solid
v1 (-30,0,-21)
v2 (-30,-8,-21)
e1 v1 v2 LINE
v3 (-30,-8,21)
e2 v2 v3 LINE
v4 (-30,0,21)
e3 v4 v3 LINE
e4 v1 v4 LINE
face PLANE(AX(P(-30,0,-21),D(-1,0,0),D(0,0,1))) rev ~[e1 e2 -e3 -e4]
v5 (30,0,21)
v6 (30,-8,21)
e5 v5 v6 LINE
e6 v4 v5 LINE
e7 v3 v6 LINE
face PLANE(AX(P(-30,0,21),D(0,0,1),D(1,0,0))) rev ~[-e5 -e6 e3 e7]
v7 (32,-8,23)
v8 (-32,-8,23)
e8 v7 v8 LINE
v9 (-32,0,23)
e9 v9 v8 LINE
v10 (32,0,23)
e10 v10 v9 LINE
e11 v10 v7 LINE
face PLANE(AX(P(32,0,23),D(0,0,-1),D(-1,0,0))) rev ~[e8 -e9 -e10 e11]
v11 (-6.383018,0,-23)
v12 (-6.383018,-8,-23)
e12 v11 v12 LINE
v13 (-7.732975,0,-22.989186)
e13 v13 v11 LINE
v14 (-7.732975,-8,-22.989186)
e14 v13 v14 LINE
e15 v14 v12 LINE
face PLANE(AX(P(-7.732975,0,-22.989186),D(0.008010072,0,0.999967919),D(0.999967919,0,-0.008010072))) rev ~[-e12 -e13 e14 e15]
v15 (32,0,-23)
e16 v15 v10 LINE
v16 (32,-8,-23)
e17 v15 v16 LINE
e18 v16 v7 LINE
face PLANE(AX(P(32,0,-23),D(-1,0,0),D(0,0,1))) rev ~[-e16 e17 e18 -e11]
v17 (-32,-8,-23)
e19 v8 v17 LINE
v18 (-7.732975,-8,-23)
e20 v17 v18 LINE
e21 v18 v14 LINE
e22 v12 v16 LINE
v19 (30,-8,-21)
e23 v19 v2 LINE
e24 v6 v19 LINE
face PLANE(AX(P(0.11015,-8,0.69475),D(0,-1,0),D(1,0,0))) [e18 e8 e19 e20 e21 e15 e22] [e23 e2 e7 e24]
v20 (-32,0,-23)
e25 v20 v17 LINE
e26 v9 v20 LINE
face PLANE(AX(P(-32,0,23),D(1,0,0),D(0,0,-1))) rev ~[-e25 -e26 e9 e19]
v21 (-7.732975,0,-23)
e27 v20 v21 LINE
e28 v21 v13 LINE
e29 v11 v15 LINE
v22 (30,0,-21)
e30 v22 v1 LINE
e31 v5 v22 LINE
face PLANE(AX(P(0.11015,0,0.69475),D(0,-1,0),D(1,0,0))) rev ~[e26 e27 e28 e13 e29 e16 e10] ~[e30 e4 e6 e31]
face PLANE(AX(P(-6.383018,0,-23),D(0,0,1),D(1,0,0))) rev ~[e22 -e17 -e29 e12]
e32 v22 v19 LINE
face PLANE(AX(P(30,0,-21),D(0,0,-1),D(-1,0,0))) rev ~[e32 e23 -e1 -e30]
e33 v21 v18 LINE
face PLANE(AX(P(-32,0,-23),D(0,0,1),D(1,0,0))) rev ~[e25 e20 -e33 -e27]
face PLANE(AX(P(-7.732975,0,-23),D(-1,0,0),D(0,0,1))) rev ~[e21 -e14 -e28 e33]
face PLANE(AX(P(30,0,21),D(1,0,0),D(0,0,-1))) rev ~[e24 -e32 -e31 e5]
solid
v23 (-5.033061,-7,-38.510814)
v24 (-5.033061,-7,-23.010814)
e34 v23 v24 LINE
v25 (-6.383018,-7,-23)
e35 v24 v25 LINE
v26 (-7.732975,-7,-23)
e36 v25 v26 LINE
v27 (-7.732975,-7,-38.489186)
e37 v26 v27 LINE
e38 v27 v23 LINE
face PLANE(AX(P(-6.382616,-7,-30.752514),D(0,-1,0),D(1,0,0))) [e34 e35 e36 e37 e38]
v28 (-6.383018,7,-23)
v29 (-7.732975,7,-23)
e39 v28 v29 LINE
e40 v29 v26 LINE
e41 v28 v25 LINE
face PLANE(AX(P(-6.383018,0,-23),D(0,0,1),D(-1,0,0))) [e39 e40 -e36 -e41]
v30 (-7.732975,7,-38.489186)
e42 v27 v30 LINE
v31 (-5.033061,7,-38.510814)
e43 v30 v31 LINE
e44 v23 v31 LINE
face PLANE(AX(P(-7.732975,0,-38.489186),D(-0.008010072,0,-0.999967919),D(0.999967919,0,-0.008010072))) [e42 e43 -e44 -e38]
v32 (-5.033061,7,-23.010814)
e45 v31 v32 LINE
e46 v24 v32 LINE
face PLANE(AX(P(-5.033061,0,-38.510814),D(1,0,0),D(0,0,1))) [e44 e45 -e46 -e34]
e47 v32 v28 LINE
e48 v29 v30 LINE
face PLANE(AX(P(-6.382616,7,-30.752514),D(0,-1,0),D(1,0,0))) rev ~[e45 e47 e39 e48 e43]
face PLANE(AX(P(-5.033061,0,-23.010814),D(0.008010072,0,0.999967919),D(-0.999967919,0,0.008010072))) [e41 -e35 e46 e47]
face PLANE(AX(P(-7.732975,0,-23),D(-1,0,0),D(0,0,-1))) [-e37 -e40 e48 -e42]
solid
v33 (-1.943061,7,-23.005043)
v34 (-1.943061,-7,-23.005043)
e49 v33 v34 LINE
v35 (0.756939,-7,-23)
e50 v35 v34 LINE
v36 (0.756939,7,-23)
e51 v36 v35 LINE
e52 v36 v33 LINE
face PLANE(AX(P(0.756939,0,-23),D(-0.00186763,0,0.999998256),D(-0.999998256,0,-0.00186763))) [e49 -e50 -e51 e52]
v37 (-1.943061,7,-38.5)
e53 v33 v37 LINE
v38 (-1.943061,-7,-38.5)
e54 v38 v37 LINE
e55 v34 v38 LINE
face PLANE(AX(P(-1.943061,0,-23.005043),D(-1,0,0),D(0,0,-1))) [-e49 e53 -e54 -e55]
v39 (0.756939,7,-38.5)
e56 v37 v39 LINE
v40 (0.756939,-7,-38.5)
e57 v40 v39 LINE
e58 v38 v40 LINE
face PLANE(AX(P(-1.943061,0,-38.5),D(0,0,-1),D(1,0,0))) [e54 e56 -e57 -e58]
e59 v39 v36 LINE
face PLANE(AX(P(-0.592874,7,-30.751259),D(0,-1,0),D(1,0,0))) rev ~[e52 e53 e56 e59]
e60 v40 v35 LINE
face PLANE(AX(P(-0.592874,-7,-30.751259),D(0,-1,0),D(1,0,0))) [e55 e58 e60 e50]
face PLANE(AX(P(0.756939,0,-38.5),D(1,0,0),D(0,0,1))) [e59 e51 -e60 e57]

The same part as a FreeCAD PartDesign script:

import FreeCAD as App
import Part
import Sketcher
from FreeCAD import Vector


def add_polygon(sketch, points):
    """Adds a closed chain of lines whose ends are joined by coincident constraints."""
    first, n = sketch.GeometryCount, len(points)
    for a, b in zip(points, points[1:] + points[:1]):
        sketch.addGeometry(Part.LineSegment(App.Vector(*a, 0), App.Vector(*b, 0)), False)
    for i in range(n):
        sketch.addConstraint(Sketcher.Constraint("Coincident", first + i, 2, first + (i + 1) % n, 1))

doc = App.newDocument("Part")
body = doc.addObject("PartDesign::Body", "Body")

# Sketch on XZ plane
sketch1 = doc.addObject("Sketcher::SketchObject", "Sketch")
body.addObject(sketch1)
sketch1.AttachmentSupport = (doc.XZ_Plane, [""])
sketch1.MapMode = "FlatFace"
add_polygon(sketch1, [(32, -23), (32, 23), (-32, 23), (-32, -23), (-7.732975, -23), (-7.732975, -22.989186), (-6.383018, -23)])  # lines 0-6
add_polygon(sketch1, [(30, 21), (30, -21), (-30, -21), (-30, 21)])  # lines 7-10
sketch1.addConstraint(Sketcher.Constraint("Vertical", 0))
sketch1.addConstraint(Sketcher.Constraint("Horizontal", 1))
sketch1.addConstraint(Sketcher.Constraint("Vertical", 2))
sketch1.addConstraint(Sketcher.Constraint("Horizontal", 3))
sketch1.addConstraint(Sketcher.Constraint("Vertical", 4))
sketch1.addConstraint(Sketcher.Constraint("Horizontal", 6))
sketch1.addConstraint(Sketcher.Constraint("Vertical", 7))
sketch1.addConstraint(Sketcher.Constraint("Horizontal", 8))
sketch1.addConstraint(Sketcher.Constraint("Vertical", 9))
sketch1.addConstraint(Sketcher.Constraint("Horizontal", 10))
sketch1.addConstraint(Sketcher.Constraint("Symmetric", 0, 2, 2, 2, -1, 1))
sketch1.addConstraint(Sketcher.Constraint("Symmetric", 7, 2, 9, 2, -1, 1))
sketch1.addConstraint(Sketcher.Constraint("Horizontal", 3, 2, 5, 2))
sketch1.addConstraint(Sketcher.Constraint("DistanceX", 1, 2, 1, 1, 64.0))
sketch1.addConstraint(Sketcher.Constraint("DistanceX", 8, 2, 8, 1, 60.0))
sketch1.addConstraint(Sketcher.Constraint("DistanceY", 0, 1, 0, 2, 46.0))
sketch1.addConstraint(Sketcher.Constraint("DistanceY", 7, 2, 7, 1, 42.0))
sketch1.addConstraint(Sketcher.Constraint("Distance", 5, 1.35))
sketch1.addConstraint(Sketcher.Constraint("DistanceX", 6, 1, 6, 2, 38.383018))
sketch1.addConstraint(Sketcher.Constraint("DistanceX", 3, 1, 3, 2, 24.267025))
pad1 = doc.addObject("PartDesign::Pad", "Pad")
body.addObject(pad1)
pad1.Profile = sketch1
pad1.Length = 8
body2 = doc.addObject("PartDesign::Body", "Body001")

# Sketch on XZ plane
sketch2 = doc.addObject("Sketcher::SketchObject", "Sketch001")
body2.addObject(sketch2)
sketch2.AttachmentSupport = (doc.getObject("XZ_Plane001"), [""])
sketch2.MapMode = "FlatFace"
add_polygon(sketch2, [(-5.033061, -23.010814), (-6.383018, -23), (-7.732975, -23), (-7.732975, -38.489186), (-5.033061, -38.510814)])  # lines 0-4
sketch2.addConstraint(Sketcher.Constraint("Horizontal", 1))
sketch2.addConstraint(Sketcher.Constraint("Vertical", 2))
sketch2.addConstraint(Sketcher.Constraint("Vertical", 4))
sketch2.addConstraint(Sketcher.Constraint("Parallel", 0, 3))
sketch2.addConstraint(Sketcher.Constraint("DistanceY", 4, 1, 4, 2, 15.5))
sketch2.addConstraint(Sketcher.Constraint("DistanceY", 0, 2, -1, 1, 23.0))
sketch2.addConstraint(Sketcher.Constraint("Distance", 3, 2.7))
sketch2.addConstraint(Sketcher.Constraint("Distance", 0, 1.35))
sketch2.addConstraint(Sketcher.Constraint("DistanceX", 1, 2, 1, 1, 1.349957))
sketch2.addConstraint(Sketcher.Constraint("DistanceX", 0, 2, -1, 1, 6.383018))
pad2 = doc.addObject("PartDesign::Pad", "Pad001")
body2.addObject(pad2)
pad2.Profile = sketch2
pad2.Type = "TwoLengths"
pad2.Length = 7
pad2.Length2 = 7
body3 = doc.addObject("PartDesign::Body", "Body002")

# Sketch on XZ plane
sketch3 = doc.addObject("Sketcher::SketchObject", "Sketch002")
body3.addObject(sketch3)
sketch3.AttachmentSupport = (doc.getObject("XZ_Plane002"), [""])
sketch3.MapMode = "FlatFace"
add_polygon(sketch3, [(0.8, -38.5), (0.8, -23), (-1.9, -23), (-1.9, -38.5)])  # lines 0-3
sketch3.addConstraint(Sketcher.Constraint("Vertical", 0))
sketch3.addConstraint(Sketcher.Constraint("Vertical", 2))
sketch3.addConstraint(Sketcher.Constraint("Horizontal", 3))
sketch3.addConstraint(Sketcher.Constraint("DistanceX", 3, 1, 3, 2, 2.7))
sketch3.addConstraint(Sketcher.Constraint("DistanceY", 0, 1, 0, 2, 15.5))
sketch3.addConstraint(Sketcher.Constraint("DistanceY", 0, 2, -1, 1, 23.0))
sketch3.addConstraint(Sketcher.Constraint("DistanceY", 2, 2, 2, 1, 15.494957))
sketch3.addConstraint(Sketcher.Constraint("DistanceX", -1, 1, 0, 2, 0.756939))
pad3 = doc.addObject("PartDesign::Pad", "Pad002")
body3.addObject(pad3)
pad3.Profile = sketch3
pad3.Type = "TwoLengths"
pad3.Length = 7
pad3.Length2 = 7

doc.recompute()
